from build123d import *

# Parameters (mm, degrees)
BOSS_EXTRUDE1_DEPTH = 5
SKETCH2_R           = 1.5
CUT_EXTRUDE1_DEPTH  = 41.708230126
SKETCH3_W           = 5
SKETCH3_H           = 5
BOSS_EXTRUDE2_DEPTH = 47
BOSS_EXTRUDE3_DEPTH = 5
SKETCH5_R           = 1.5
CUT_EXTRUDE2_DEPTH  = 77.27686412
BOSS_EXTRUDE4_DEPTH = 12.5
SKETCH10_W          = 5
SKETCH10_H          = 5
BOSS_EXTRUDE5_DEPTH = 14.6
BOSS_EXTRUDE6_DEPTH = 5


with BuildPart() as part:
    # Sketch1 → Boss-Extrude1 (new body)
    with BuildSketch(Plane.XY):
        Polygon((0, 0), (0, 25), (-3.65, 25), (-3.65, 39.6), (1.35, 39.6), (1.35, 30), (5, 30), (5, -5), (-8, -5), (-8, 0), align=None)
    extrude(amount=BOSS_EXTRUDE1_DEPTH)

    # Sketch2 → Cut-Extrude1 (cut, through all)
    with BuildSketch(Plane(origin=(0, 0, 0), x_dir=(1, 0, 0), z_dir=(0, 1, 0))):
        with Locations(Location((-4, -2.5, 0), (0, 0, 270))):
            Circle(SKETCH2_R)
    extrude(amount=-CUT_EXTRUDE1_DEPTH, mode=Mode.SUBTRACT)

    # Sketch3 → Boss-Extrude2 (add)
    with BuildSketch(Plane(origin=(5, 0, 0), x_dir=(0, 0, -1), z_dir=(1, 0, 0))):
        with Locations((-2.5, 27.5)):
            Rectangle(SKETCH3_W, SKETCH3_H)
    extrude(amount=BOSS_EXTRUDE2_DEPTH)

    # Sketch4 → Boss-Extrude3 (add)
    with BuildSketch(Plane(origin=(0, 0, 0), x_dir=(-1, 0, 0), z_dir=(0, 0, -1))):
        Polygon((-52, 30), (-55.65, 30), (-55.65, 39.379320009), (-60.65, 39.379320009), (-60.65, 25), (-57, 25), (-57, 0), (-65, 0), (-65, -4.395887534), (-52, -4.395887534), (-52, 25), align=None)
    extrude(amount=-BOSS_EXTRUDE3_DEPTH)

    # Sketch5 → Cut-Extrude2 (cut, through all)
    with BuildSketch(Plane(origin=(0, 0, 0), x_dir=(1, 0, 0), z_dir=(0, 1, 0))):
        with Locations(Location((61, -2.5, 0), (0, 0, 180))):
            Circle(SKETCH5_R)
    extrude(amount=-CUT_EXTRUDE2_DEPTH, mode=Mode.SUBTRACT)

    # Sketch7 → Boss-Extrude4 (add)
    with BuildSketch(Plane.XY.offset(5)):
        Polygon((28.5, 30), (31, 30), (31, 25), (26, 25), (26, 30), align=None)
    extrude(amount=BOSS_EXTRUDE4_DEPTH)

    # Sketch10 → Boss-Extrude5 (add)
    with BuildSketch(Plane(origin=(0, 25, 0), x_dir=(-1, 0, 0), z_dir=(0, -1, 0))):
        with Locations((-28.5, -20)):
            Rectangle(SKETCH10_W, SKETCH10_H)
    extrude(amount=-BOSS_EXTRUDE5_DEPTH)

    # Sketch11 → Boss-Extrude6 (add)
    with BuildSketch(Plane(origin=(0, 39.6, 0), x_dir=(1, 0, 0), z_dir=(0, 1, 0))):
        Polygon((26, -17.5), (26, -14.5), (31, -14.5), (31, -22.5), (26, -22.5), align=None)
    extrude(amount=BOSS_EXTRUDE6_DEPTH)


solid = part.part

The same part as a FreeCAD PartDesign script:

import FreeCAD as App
import Part
import Sketcher
from FreeCAD import Vector
Q = App.Units.Quantity

doc = App.newDocument("Part")
params = doc.addObject("Spreadsheet::Sheet", "Params")
for row, (alias, value) in enumerate([
    ("sketch1_width", "8 mm"),
    ("sketch1_width2", "13 mm"),
    ("sketch1_height", "25 mm"),
    ("sketch1_height2", "35 mm"),
    ("sketch1_height3", "9.6 mm"),
    ("pad1_length", "5 mm"),
    ("sketch2_diameter", "3 mm"),
    ("sketch3_width", "5 mm"),
    ("pad2_length", "47 mm"),
    ("sketch4_width", "5 mm"),
    ("sketch4_width2", "8 mm"),
    ("sketch4_height", "25 mm"),
    ("sketch4_width3", "3.65 mm"),
    ("pad3_length", "5 mm"),
    ("sketch5_diameter", "3 mm"),
    ("sketch6_width", "5 mm"),
    ("pad4_length", "12.5 mm"),
    ("sketch7_width", "5 mm"),
    ("pad5_length", "14.6 mm"),
    ("sketch8_width", "5 mm"),
    ("sketch8_height", "8 mm"),
    ("pad6_length", "5 mm"),
], start=1):
    params.set(f"A{row}", alias)
    params.set(f"B{row}", "=" + value)
    params.setAlias(f"B{row}", alias)

body = doc.addObject("PartDesign::Body", "Body")

# Sketch on XY plane
sketch1 = body.newObject("Sketcher::SketchObject", "Sketch")
sketch1.AttachmentSupport = (doc.getObject("XY_Plane"), [""])
sketch1.MapMode = "FlatFace"
sketch1.addGeometry([
    Part.LineSegment(Vector(0, 25, 0), Vector(0, 0, 0)),  # 0
    Part.LineSegment(Vector(0, 0, 0), Vector(-8, 0, 0)),  # 1
    Part.LineSegment(Vector(-8, 0, 0), Vector(-8, -5, 0)),  # 2
    Part.LineSegment(Vector(-8, -5, 0), Vector(5, -5, 0)),  # 3
    Part.LineSegment(Vector(5, -5, 0), Vector(5, 30, 0)),  # 4
    Part.LineSegment(Vector(5, 30, 0), Vector(1.4, 30, 0)),  # 5
    Part.LineSegment(Vector(1.4, 30, 0), Vector(1.4, 39.6, 0)),  # 6
    Part.LineSegment(Vector(1.4, 39.6, 0), Vector(-3.6, 39.6, 0)),  # 7
    Part.LineSegment(Vector(-3.6, 39.6, 0), Vector(-3.6, 25, 0)),  # 8
    Part.LineSegment(Vector(-3.6, 25, 0), Vector(0, 25, 0)),  # 9
], False)
sketch1.addConstraint([
    Sketcher.Constraint("Coincident", 0, 2, 1, 1),
    Sketcher.Constraint("Coincident", 1, 2, 2, 1),
    Sketcher.Constraint("Coincident", 2, 2, 3, 1),
    Sketcher.Constraint("Coincident", 3, 2, 4, 1),
    Sketcher.Constraint("Coincident", 4, 2, 5, 1),
    Sketcher.Constraint("Coincident", 5, 2, 6, 1),
    Sketcher.Constraint("Coincident", 6, 2, 7, 1),
    Sketcher.Constraint("Coincident", 7, 2, 8, 1),
    Sketcher.Constraint("Coincident", 8, 2, 9, 1),
    Sketcher.Constraint("Coincident", 9, 2, 0, 1),
    Sketcher.Constraint("Vertical", 0),
    Sketcher.Constraint("Horizontal", 1),
    Sketcher.Constraint("Vertical", 2),
    Sketcher.Constraint("Horizontal", 3),
    Sketcher.Constraint("Vertical", 4),
    Sketcher.Constraint("Horizontal", 5),
    Sketcher.Constraint("Vertical", 6),
    Sketcher.Constraint("Horizontal", 7),
    Sketcher.Constraint("Vertical", 8),
    Sketcher.Constraint("Horizontal", 9),
    Sketcher.Constraint("Coincident", 0, 2, -1, 1),
    Sketcher.Constraint("Equal", 5, 9),
    Sketcher.Constraint("Equal", 7, 2),
    Sketcher.Constraint("DistanceX", 1, 2, 1, 1, Q("8 mm")),
    Sketcher.Constraint("DistanceX", 3, 1, 3, 2, Q("13 mm")),
    Sketcher.Constraint("DistanceY", 0, 2, 0, 1, Q("25 mm")),
    Sketcher.Constraint("DistanceY", 4, 1, 4, 2, Q("35 mm")),
    Sketcher.Constraint("DistanceY", 6, 1, 6, 2, Q("9.6 mm")),
    Sketcher.Constraint("DistanceX", 5, 2, 5, 1, Q("3.65 mm")),
])
sketch1.setExpression("Constraints[23]", "Params.sketch1_width")
sketch1.setExpression("Constraints[24]", "Params.sketch1_width2")
sketch1.setExpression("Constraints[25]", "Params.sketch1_height")
sketch1.setExpression("Constraints[26]", "Params.sketch1_height2")
sketch1.setExpression("Constraints[27]", "Params.sketch1_height3")
pad1 = body.newObject("PartDesign::Pad", "Pad")
pad1.Profile = sketch1
pad1.setExpression("Length", "Params.pad1_length")

# Sketch on XZ plane
sketch2 = body.newObject("Sketcher::SketchObject", "Sketch001")
sketch2.AttachmentSupport = (doc.getObject("XZ_Plane"), [""])
sketch2.MapMode = "FlatFace"
sketch2.addGeometry(Part.Circle(Vector(-4, 2.5, 0), Vector(0, 0, 1), 1.5), False)
sketch2.addConstraint([
    Sketcher.Constraint("Diameter", 0, Q("3 mm")),
    Sketcher.Constraint("DistanceX", 0, 3, -1, 1, Q("4 mm")),
    Sketcher.Constraint("DistanceY", -1, 1, 0, 3, Q("2.5 mm")),
])
sketch2.setExpression("Constraints[0]", "Params.sketch2_diameter")
pocket1 = body.newObject("PartDesign::Pocket", "Pocket")
pocket1.Profile = sketch2
pocket1.Type = "ThroughAll"
pocket1.Reversed = True

# Sketch on YZ plane
sketch3 = body.newObject("Sketcher::SketchObject", "Sketch002")
sketch3.AttachmentSupport = (doc.getObject("YZ_Plane"), [""])
sketch3.MapMode = "FlatFace"
sketch3.AttachmentOffset = App.Placement(Vector(0, 0, 5), App.Rotation())
sketch3.addGeometry([
    Part.LineSegment(Vector(30, 5, 0), Vector(25, 5, 0)),
    Part.LineSegment(Vector(25, 5, 0), Vector(25, 0, 0)),
    Part.LineSegment(Vector(25, 0, 0), Vector(30, 0, 0)),
    Part.LineSegment(Vector(30, 0, 0), Vector(30, 5, 0)),
], False)
sketch3.addConstraint([
    Sketcher.Constraint("Coincident", 0, 2, 1, 1),
    Sketcher.Constraint("Coincident", 1, 2, 2, 1),
    Sketcher.Constraint("Coincident", 2, 2, 3, 1),
    Sketcher.Constraint("Coincident", 3, 2, 0, 1),
    Sketcher.Constraint("Horizontal", 0),
    Sketcher.Constraint("Vertical", 1),
    Sketcher.Constraint("Horizontal", 2),
    Sketcher.Constraint("Vertical", 3),
    Sketcher.Constraint("PointOnObject", 1, 2, -1),
    Sketcher.Constraint("Equal", 2, 1),
    Sketcher.Constraint("DistanceX", 0, 2, 0, 1, Q("5 mm")),
    Sketcher.Constraint("DistanceX", -1, 1, 0, 2, Q("25 mm")),
])
sketch3.setExpression("Constraints[10]", "Params.sketch3_width")
pad2 = body.newObject("PartDesign::Pad", "Pad001")
pad2.Profile = sketch3
pad2.setExpression("Length", "Params.pad2_length")

# Sketch on XY plane
sketch4 = body.newObject("Sketcher::SketchObject", "Sketch003")
sketch4.AttachmentSupport = (doc.getObject("XY_Plane"), [""])
sketch4.MapMode = "FlatFace"
sketch4.addGeometry([
    Part.LineSegment(Vector(52, 30, 0), Vector(55.6, 30, 0)),  # 0
    Part.LineSegment(Vector(55.6, 30, 0), Vector(55.6, 39.4, 0)),  # 1
    Part.LineSegment(Vector(55.6, 39.4, 0), Vector(60.6, 39.4, 0)),  # 2
    Part.LineSegment(Vector(60.6, 39.4, 0), Vector(60.6, 25, 0)),  # 3
    Part.LineSegment(Vector(60.6, 25, 0), Vector(57, 25, 0)),  # 4
    Part.LineSegment(Vector(57, 25, 0), Vector(57, 0, 0)),  # 5
    Part.LineSegment(Vector(57, 0, 0), Vector(65, 0, 0)),  # 6
    Part.LineSegment(Vector(65, 0, 0), Vector(65, -4.4, 0)),  # 7
    Part.LineSegment(Vector(65, -4.4, 0), Vector(52, -4.4, 0)),  # 8
    Part.LineSegment(Vector(52, -4.4, 0), Vector(52, 30, 0)),  # 9
], False)
sketch4.addConstraint([
    Sketcher.Constraint("Coincident", 0, 2, 1, 1),
    Sketcher.Constraint("Coincident", 1, 2, 2, 1),
    Sketcher.Constraint("Coincident", 2, 2, 3, 1),
    Sketcher.Constraint("Coincident", 3, 2, 4, 1),
    Sketcher.Constraint("Coincident", 4, 2, 5, 1),
    Sketcher.Constraint("Coincident", 5, 2, 6, 1),
    Sketcher.Constraint("Coincident", 6, 2, 7, 1),
    Sketcher.Constraint("Coincident", 7, 2, 8, 1),
    Sketcher.Constraint("Coincident", 8, 2, 9, 1),
    Sketcher.Constraint("Coincident", 9, 2, 0, 1),
    Sketcher.Constraint("Horizontal", 0),
    Sketcher.Constraint("Vertical", 1),
    Sketcher.Constraint("Horizontal", 2),
    Sketcher.Constraint("Vertical", 3),
    Sketcher.Constraint("Horizontal", 4),
    Sketcher.Constraint("Vertical", 5),
    Sketcher.Constraint("Horizontal", 6),
    Sketcher.Constraint("Vertical", 7),
    Sketcher.Constraint("Horizontal", 8),
    Sketcher.Constraint("Vertical", 9),
    Sketcher.Constraint("PointOnObject", 5, 2, -1),
    Sketcher.Constraint("Equal", 0, 4),
    Sketcher.Constraint("DistanceX", 2, 1, 2, 2, Q("5 mm")),
    Sketcher.Constraint("DistanceX", 6, 1, 6, 2, Q("8 mm")),
    Sketcher.Constraint("DistanceY", 5, 2, 5, 1, Q("25 mm")),
    Sketcher.Constraint("DistanceY", -1, 1, 0, 2, Q("30 mm")),
    Sketcher.Constraint("DistanceX", -1, 1, 4, 2, Q("57 mm")),
    Sketcher.Constraint("DistanceX", 0, 1, 0, 2, Q("3.65 mm")),
    Sketcher.Constraint("DistanceY", 1, 1, 1, 2, Q("9.37932 mm")),
    Sketcher.Constraint("DistanceY", 7, 2, 7, 1, Q("4.395888 mm")),
])
sketch4.setExpression("Constraints[22]", "Params.sketch4_width")
sketch4.setExpression("Constraints[23]", "Params.sketch4_width2")
sketch4.setExpression("Constraints[24]", "Params.sketch4_height")
sketch4.setExpression("Constraints[27]", "Params.sketch4_width3")
pad3 = body.newObject("PartDesign::Pad", "Pad002")
pad3.Profile = sketch4
pad3.setExpression("Length", "Params.pad3_length")

# Sketch on XZ plane
sketch5 = body.newObject("Sketcher::SketchObject", "Sketch004")
sketch5.AttachmentSupport = (doc.getObject("XZ_Plane"), [""])
sketch5.MapMode = "FlatFace"
sketch5.addGeometry(Part.Circle(Vector(61, 2.5, 0), Vector(0, 0, 1), 1.5), False)
sketch5.addConstraint([
    Sketcher.Constraint("Diameter", 0, Q("3 mm")),
    Sketcher.Constraint("DistanceX", -1, 1, 0, 3, Q("61 mm")),
    Sketcher.Constraint("DistanceY", -1, 1, 0, 3, Q("2.5 mm")),
])
sketch5.setExpression("Constraints[0]", "Params.sketch5_diameter")
pocket2 = body.newObject("PartDesign::Pocket", "Pocket001")
pocket2.Profile = sketch5
pocket2.Type = "ThroughAll"
pocket2.Reversed = True

# Sketch on XY plane
sketch6 = body.newObject("Sketcher::SketchObject", "Sketch005")
sketch6.AttachmentSupport = (doc.getObject("XY_Plane"), [""])
sketch6.MapMode = "FlatFace"
sketch6.AttachmentOffset = App.Placement(Vector(0, 0, 5), App.Rotation())
sketch6.addGeometry([
    Part.LineSegment(Vector(31, 30, 0), Vector(26, 30, 0)),
    Part.LineSegment(Vector(26, 30, 0), Vector(26, 25, 0)),
    Part.LineSegment(Vector(26, 25, 0), Vector(31, 25, 0)),
    Part.LineSegment(Vector(31, 25, 0), Vector(31, 30, 0)),
], False)
sketch6.addConstraint([
    Sketcher.Constraint("Coincident", 0, 2, 1, 1),
    Sketcher.Constraint("Coincident", 1, 2, 2, 1),
    Sketcher.Constraint("Coincident", 2, 2, 3, 1),
    Sketcher.Constraint("Coincident", 3, 2, 0, 1),
    Sketcher.Constraint("Horizontal", 0),
    Sketcher.Constraint("Vertical", 1),
    Sketcher.Constraint("Horizontal", 2),
    Sketcher.Constraint("Vertical", 3),
    Sketcher.Constraint("Equal", 2, 1),
    Sketcher.Constraint("DistanceX", 0, 2, 0, 1, Q("5 mm")),
    Sketcher.Constraint("DistanceX", -1, 1, 0, 2, Q("26 mm")),
    Sketcher.Constraint("DistanceY", -1, 1, 0, 2, Q("30 mm")),
])
sketch6.setExpression("Constraints[9]", "Params.sketch6_width")
pad4 = body.newObject("PartDesign::Pad", "Pad003")
pad4.Profile = sketch6
pad4.setExpression("Length", "Params.pad4_length")

# Sketch on XZ plane
sketch7 = body.newObject("Sketcher::SketchObject", "Sketch006")
sketch7.AttachmentSupport = (doc.getObject("XZ_Plane"), [""])
sketch7.MapMode = "FlatFace"
sketch7.AttachmentOffset = App.Placement(Vector(0, 0, -25), App.Rotation())
sketch7.addGeometry([
    Part.LineSegment(Vector(31, 18, 0), Vector(31, 22, 0)),
    Part.LineSegment(Vector(31, 22, 0), Vector(26, 22, 0)),
    Part.LineSegment(Vector(26, 22, 0), Vector(26, 18, 0)),
    Part.LineSegment(Vector(26, 18, 0), Vector(31, 18, 0)),
], False)
sketch7.addConstraint([
    Sketcher.Constraint("Coincident", 0, 2, 1, 1),
    Sketcher.Constraint("Coincident", 1, 2, 2, 1),
    Sketcher.Constraint("Coincident", 2, 2, 3, 1),
    Sketcher.Constraint("Coincident", 3, 2, 0, 1),
    Sketcher.Constraint("Vertical", 0),
    Sketcher.Constraint("Horizontal", 1),
    Sketcher.Constraint("Vertical", 2),
    Sketcher.Constraint("Horizontal", 3),
    Sketcher.Constraint("Equal", 3, 0),
    Sketcher.Constraint("DistanceX", 1, 2, 1, 1, Q("5 mm")),
    Sketcher.Constraint("DistanceX", -1, 1, 0, 2, Q("31 mm")),
    Sketcher.Constraint("DistanceY", -1, 1, 0, 2, Q("22.5 mm")),
])
sketch7.setExpression("Constraints[9]", "Params.sketch7_width")
pad5 = body.newObject("PartDesign::Pad", "Pad004")
pad5.Profile = sketch7
pad5.setExpression("Length", "Params.pad5_length")
pad5.Reversed = True

# Sketch on XZ plane
sketch8 = body.newObject("Sketcher::SketchObject", "Sketch007")
sketch8.AttachmentSupport = (doc.getObject("XZ_Plane"), [""])
sketch8.MapMode = "FlatFace"
sketch8.AttachmentOffset = App.Placement(Vector(0, 0, -39.6), App.Rotation())
sketch8.addGeometry([
    Part.LineSegment(Vector(26, 14, 0), Vector(26, 22, 0)),
    Part.LineSegment(Vector(26, 22, 0), Vector(31, 22, 0)),
    Part.LineSegment(Vector(31, 22, 0), Vector(31, 14, 0)),
    Part.LineSegment(Vector(31, 14, 0), Vector(26, 14, 0)),
], False)
sketch8.addConstraint([
    Sketcher.Constraint("Coincident", 0, 2, 1, 1),
    Sketcher.Constraint("Coincident", 1, 2, 2, 1),
    Sketcher.Constraint("Coincident", 2, 2, 3, 1),
    Sketcher.Constraint("Coincident", 3, 2, 0, 1),
    Sketcher.Constraint("Vertical", 0),
    Sketcher.Constraint("Horizontal", 1),
    Sketcher.Constraint("Vertical", 2),
    Sketcher.Constraint("Horizontal", 3),
    Sketcher.Constraint("DistanceX", 1, 1, 1, 2, Q("5 mm")),
    Sketcher.Constraint("DistanceY", 0, 1, 0, 2, Q("8 mm")),
    Sketcher.Constraint("DistanceX", -1, 1, 0, 2, Q("26 mm")),
    Sketcher.Constraint("DistanceY", -1, 1, 0, 2, Q("22.5 mm")),
])
sketch8.setExpression("Constraints[8]", "Params.sketch8_width")
sketch8.setExpression("Constraints[9]", "Params.sketch8_height")
pad6 = body.newObject("PartDesign::Pad", "Pad005")
pad6.Profile = sketch8
pad6.setExpression("Length", "Params.pad6_length")
pad6.Reversed = True

doc.recompute()
